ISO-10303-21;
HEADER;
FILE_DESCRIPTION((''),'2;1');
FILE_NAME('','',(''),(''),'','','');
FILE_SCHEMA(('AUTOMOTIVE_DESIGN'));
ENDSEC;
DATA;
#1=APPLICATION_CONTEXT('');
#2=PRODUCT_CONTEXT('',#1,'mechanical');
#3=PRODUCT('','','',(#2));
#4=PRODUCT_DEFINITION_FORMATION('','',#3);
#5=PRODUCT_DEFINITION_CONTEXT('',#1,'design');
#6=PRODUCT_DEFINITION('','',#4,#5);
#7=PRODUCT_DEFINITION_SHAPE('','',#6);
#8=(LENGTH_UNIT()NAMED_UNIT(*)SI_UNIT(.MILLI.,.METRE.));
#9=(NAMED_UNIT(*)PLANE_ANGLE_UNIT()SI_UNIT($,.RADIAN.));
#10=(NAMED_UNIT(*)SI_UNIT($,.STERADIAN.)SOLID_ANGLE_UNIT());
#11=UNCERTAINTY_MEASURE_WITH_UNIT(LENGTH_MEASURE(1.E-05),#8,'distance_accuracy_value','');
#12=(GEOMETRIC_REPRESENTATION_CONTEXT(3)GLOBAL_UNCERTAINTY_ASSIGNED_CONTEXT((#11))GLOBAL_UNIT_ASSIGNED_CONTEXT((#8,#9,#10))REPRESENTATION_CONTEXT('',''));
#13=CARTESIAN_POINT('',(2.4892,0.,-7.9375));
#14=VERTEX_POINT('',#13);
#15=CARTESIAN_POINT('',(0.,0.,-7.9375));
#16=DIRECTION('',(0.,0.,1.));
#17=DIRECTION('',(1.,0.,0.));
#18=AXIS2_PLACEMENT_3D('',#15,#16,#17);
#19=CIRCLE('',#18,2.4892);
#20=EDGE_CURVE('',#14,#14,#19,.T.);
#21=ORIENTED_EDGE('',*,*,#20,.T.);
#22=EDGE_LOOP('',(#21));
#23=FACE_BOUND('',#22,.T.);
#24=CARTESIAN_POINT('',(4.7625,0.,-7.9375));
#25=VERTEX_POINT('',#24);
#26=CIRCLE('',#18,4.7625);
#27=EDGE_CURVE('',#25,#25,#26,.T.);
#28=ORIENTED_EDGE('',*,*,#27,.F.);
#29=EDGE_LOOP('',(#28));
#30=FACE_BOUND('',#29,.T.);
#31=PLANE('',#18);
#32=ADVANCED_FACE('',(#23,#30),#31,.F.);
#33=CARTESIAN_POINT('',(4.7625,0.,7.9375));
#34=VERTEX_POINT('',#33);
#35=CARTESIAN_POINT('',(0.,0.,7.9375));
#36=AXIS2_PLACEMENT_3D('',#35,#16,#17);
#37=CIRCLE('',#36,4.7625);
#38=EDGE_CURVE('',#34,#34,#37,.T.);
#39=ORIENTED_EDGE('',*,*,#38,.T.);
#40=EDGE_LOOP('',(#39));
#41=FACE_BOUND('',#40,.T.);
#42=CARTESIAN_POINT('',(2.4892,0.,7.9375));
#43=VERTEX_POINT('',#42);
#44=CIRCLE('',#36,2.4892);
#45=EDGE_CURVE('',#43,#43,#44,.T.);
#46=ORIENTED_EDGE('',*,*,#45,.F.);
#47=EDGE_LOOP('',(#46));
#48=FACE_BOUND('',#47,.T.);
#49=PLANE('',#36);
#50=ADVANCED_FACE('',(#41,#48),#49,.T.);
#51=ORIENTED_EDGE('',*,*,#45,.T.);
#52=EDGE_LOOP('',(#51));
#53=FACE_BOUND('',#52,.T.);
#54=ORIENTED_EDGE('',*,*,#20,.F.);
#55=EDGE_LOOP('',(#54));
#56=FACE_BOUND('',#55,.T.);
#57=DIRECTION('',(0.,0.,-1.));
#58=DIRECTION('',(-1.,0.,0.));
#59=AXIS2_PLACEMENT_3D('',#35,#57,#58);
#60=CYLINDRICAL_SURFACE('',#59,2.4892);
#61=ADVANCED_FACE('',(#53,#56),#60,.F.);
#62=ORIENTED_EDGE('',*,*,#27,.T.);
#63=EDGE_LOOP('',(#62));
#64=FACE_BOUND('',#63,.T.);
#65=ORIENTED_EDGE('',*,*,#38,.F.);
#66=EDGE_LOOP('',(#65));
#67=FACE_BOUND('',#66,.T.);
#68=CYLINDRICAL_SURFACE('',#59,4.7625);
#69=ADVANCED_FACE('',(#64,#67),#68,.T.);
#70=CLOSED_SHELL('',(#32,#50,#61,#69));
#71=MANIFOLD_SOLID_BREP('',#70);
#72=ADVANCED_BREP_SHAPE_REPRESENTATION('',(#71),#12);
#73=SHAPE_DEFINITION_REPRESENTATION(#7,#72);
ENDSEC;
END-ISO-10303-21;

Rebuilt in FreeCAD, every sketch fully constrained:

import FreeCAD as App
import Part
import Sketcher

V = App.Vector
Q = App.Units.Quantity

doc = App.newDocument("Part")
body = doc.addObject("PartDesign::Body", "Body")

# Sketch on XY plane
sketch1 = doc.addObject("Sketcher::SketchObject", "Sketch")
body.addObject(sketch1)
sketch1.AttachmentSupport = (doc.XY_Plane, [""])
sketch1.MapMode = "FlatFace"
sketch1.addGeometry([
    Part.Circle(V(0, 0, 0), V(0, 0, 1), 4.7625),
    Part.Circle(V(0, 0, 0), V(0, 0, 1), 2.4892),
], False)
sketch1.addConstraint([
    Sketcher.Constraint("Coincident", 0, 3, -1, 1),
    Sketcher.Constraint("Coincident", 1, 3, -1, 1),
    Sketcher.Constraint("Diameter", 0, Q("0.375 in")),
    Sketcher.Constraint("Diameter", 1, Q("0.196 in")),
])
pad1 = doc.addObject("PartDesign::Pad", "Pad")
body.addObject(pad1)
pad1.Profile = sketch1
pad1.Length = Q("0.625 in")
pad1.Midplane = True

doc.recompute()
